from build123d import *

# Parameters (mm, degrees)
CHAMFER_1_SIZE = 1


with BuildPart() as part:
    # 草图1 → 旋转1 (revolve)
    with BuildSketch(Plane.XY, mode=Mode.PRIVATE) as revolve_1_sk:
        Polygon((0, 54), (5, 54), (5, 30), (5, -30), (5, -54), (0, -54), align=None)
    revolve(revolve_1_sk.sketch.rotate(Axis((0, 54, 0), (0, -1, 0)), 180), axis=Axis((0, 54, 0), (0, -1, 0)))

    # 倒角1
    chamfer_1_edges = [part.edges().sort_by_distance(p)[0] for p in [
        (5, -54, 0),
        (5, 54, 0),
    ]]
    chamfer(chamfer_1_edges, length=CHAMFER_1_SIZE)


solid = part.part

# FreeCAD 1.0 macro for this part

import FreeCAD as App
import Part
import Sketcher

V = App.Vector


def edges_at(feature, points):
    """Names of the edges that pass closest to the given points."""
    edges = feature.Shape.Edges
    near = lambda p: min(range(len(edges)), key=lambda i: edges[i].distToShape(Part.Vertex(*p))[0])
    return sorted({f"Edge{near(p) + 1}" for p in points})


def add_polygon(sketch, points):
    """Adds a closed chain of lines whose ends are joined by coincident constraints."""
    first, n = sketch.GeometryCount, len(points)
    for a, b in zip(points, points[1:] + points[:1]):
        sketch.addGeometry(Part.LineSegment(App.Vector(*a, 0), App.Vector(*b, 0)), False)
    for i in range(n):
        sketch.addConstraint(Sketcher.Constraint("Coincident", first + i, 2, first + (i + 1) % n, 1))

doc = App.newDocument("Part")
body = doc.addObject("PartDesign::Body", "Body")

sketch1 = body.newObject("Sketcher::SketchObject", "Sketch")
sketch1.AttachmentSupport = (doc.getObject("XY_Plane"), [""])
sketch1.MapMode = "FlatFace"
add_polygon(sketch1, [(5, 54), (0, 54), (0, -54), (5, -54)])
sketch1.addConstraint(Sketcher.Constraint("Horizontal", 0))
sketch1.addConstraint(Sketcher.Constraint("Vertical", 1))
sketch1.addConstraint(Sketcher.Constraint("Horizontal", 2))
sketch1.addConstraint(Sketcher.Constraint("Vertical", 3))
sketch1.addConstraint(Sketcher.Constraint("Symmetric", 0, 2, 1, 2, -1, 1))
sketch1.addConstraint(Sketcher.Constraint("DistanceX", 0, 2, 0, 1, 5.0))
sketch1.addConstraint(Sketcher.Constraint("DistanceY", 1, 2, 1, 1, 108.0))
revolution = body.newObject("PartDesign::Revolution", "Revolution")
revolution.Profile = sketch1
revolution.ReferenceAxis = (sketch1, ["V_Axis"])
revolution.Angle = 360
doc.recompute()

chamfer = body.newObject("PartDesign::Chamfer", "Chamfer")
chamfer.Base = (revolution, edges_at(revolution, [(5, -54, 0), (5, 54, 0)]))
chamfer.Size = 1

doc.recompute()
